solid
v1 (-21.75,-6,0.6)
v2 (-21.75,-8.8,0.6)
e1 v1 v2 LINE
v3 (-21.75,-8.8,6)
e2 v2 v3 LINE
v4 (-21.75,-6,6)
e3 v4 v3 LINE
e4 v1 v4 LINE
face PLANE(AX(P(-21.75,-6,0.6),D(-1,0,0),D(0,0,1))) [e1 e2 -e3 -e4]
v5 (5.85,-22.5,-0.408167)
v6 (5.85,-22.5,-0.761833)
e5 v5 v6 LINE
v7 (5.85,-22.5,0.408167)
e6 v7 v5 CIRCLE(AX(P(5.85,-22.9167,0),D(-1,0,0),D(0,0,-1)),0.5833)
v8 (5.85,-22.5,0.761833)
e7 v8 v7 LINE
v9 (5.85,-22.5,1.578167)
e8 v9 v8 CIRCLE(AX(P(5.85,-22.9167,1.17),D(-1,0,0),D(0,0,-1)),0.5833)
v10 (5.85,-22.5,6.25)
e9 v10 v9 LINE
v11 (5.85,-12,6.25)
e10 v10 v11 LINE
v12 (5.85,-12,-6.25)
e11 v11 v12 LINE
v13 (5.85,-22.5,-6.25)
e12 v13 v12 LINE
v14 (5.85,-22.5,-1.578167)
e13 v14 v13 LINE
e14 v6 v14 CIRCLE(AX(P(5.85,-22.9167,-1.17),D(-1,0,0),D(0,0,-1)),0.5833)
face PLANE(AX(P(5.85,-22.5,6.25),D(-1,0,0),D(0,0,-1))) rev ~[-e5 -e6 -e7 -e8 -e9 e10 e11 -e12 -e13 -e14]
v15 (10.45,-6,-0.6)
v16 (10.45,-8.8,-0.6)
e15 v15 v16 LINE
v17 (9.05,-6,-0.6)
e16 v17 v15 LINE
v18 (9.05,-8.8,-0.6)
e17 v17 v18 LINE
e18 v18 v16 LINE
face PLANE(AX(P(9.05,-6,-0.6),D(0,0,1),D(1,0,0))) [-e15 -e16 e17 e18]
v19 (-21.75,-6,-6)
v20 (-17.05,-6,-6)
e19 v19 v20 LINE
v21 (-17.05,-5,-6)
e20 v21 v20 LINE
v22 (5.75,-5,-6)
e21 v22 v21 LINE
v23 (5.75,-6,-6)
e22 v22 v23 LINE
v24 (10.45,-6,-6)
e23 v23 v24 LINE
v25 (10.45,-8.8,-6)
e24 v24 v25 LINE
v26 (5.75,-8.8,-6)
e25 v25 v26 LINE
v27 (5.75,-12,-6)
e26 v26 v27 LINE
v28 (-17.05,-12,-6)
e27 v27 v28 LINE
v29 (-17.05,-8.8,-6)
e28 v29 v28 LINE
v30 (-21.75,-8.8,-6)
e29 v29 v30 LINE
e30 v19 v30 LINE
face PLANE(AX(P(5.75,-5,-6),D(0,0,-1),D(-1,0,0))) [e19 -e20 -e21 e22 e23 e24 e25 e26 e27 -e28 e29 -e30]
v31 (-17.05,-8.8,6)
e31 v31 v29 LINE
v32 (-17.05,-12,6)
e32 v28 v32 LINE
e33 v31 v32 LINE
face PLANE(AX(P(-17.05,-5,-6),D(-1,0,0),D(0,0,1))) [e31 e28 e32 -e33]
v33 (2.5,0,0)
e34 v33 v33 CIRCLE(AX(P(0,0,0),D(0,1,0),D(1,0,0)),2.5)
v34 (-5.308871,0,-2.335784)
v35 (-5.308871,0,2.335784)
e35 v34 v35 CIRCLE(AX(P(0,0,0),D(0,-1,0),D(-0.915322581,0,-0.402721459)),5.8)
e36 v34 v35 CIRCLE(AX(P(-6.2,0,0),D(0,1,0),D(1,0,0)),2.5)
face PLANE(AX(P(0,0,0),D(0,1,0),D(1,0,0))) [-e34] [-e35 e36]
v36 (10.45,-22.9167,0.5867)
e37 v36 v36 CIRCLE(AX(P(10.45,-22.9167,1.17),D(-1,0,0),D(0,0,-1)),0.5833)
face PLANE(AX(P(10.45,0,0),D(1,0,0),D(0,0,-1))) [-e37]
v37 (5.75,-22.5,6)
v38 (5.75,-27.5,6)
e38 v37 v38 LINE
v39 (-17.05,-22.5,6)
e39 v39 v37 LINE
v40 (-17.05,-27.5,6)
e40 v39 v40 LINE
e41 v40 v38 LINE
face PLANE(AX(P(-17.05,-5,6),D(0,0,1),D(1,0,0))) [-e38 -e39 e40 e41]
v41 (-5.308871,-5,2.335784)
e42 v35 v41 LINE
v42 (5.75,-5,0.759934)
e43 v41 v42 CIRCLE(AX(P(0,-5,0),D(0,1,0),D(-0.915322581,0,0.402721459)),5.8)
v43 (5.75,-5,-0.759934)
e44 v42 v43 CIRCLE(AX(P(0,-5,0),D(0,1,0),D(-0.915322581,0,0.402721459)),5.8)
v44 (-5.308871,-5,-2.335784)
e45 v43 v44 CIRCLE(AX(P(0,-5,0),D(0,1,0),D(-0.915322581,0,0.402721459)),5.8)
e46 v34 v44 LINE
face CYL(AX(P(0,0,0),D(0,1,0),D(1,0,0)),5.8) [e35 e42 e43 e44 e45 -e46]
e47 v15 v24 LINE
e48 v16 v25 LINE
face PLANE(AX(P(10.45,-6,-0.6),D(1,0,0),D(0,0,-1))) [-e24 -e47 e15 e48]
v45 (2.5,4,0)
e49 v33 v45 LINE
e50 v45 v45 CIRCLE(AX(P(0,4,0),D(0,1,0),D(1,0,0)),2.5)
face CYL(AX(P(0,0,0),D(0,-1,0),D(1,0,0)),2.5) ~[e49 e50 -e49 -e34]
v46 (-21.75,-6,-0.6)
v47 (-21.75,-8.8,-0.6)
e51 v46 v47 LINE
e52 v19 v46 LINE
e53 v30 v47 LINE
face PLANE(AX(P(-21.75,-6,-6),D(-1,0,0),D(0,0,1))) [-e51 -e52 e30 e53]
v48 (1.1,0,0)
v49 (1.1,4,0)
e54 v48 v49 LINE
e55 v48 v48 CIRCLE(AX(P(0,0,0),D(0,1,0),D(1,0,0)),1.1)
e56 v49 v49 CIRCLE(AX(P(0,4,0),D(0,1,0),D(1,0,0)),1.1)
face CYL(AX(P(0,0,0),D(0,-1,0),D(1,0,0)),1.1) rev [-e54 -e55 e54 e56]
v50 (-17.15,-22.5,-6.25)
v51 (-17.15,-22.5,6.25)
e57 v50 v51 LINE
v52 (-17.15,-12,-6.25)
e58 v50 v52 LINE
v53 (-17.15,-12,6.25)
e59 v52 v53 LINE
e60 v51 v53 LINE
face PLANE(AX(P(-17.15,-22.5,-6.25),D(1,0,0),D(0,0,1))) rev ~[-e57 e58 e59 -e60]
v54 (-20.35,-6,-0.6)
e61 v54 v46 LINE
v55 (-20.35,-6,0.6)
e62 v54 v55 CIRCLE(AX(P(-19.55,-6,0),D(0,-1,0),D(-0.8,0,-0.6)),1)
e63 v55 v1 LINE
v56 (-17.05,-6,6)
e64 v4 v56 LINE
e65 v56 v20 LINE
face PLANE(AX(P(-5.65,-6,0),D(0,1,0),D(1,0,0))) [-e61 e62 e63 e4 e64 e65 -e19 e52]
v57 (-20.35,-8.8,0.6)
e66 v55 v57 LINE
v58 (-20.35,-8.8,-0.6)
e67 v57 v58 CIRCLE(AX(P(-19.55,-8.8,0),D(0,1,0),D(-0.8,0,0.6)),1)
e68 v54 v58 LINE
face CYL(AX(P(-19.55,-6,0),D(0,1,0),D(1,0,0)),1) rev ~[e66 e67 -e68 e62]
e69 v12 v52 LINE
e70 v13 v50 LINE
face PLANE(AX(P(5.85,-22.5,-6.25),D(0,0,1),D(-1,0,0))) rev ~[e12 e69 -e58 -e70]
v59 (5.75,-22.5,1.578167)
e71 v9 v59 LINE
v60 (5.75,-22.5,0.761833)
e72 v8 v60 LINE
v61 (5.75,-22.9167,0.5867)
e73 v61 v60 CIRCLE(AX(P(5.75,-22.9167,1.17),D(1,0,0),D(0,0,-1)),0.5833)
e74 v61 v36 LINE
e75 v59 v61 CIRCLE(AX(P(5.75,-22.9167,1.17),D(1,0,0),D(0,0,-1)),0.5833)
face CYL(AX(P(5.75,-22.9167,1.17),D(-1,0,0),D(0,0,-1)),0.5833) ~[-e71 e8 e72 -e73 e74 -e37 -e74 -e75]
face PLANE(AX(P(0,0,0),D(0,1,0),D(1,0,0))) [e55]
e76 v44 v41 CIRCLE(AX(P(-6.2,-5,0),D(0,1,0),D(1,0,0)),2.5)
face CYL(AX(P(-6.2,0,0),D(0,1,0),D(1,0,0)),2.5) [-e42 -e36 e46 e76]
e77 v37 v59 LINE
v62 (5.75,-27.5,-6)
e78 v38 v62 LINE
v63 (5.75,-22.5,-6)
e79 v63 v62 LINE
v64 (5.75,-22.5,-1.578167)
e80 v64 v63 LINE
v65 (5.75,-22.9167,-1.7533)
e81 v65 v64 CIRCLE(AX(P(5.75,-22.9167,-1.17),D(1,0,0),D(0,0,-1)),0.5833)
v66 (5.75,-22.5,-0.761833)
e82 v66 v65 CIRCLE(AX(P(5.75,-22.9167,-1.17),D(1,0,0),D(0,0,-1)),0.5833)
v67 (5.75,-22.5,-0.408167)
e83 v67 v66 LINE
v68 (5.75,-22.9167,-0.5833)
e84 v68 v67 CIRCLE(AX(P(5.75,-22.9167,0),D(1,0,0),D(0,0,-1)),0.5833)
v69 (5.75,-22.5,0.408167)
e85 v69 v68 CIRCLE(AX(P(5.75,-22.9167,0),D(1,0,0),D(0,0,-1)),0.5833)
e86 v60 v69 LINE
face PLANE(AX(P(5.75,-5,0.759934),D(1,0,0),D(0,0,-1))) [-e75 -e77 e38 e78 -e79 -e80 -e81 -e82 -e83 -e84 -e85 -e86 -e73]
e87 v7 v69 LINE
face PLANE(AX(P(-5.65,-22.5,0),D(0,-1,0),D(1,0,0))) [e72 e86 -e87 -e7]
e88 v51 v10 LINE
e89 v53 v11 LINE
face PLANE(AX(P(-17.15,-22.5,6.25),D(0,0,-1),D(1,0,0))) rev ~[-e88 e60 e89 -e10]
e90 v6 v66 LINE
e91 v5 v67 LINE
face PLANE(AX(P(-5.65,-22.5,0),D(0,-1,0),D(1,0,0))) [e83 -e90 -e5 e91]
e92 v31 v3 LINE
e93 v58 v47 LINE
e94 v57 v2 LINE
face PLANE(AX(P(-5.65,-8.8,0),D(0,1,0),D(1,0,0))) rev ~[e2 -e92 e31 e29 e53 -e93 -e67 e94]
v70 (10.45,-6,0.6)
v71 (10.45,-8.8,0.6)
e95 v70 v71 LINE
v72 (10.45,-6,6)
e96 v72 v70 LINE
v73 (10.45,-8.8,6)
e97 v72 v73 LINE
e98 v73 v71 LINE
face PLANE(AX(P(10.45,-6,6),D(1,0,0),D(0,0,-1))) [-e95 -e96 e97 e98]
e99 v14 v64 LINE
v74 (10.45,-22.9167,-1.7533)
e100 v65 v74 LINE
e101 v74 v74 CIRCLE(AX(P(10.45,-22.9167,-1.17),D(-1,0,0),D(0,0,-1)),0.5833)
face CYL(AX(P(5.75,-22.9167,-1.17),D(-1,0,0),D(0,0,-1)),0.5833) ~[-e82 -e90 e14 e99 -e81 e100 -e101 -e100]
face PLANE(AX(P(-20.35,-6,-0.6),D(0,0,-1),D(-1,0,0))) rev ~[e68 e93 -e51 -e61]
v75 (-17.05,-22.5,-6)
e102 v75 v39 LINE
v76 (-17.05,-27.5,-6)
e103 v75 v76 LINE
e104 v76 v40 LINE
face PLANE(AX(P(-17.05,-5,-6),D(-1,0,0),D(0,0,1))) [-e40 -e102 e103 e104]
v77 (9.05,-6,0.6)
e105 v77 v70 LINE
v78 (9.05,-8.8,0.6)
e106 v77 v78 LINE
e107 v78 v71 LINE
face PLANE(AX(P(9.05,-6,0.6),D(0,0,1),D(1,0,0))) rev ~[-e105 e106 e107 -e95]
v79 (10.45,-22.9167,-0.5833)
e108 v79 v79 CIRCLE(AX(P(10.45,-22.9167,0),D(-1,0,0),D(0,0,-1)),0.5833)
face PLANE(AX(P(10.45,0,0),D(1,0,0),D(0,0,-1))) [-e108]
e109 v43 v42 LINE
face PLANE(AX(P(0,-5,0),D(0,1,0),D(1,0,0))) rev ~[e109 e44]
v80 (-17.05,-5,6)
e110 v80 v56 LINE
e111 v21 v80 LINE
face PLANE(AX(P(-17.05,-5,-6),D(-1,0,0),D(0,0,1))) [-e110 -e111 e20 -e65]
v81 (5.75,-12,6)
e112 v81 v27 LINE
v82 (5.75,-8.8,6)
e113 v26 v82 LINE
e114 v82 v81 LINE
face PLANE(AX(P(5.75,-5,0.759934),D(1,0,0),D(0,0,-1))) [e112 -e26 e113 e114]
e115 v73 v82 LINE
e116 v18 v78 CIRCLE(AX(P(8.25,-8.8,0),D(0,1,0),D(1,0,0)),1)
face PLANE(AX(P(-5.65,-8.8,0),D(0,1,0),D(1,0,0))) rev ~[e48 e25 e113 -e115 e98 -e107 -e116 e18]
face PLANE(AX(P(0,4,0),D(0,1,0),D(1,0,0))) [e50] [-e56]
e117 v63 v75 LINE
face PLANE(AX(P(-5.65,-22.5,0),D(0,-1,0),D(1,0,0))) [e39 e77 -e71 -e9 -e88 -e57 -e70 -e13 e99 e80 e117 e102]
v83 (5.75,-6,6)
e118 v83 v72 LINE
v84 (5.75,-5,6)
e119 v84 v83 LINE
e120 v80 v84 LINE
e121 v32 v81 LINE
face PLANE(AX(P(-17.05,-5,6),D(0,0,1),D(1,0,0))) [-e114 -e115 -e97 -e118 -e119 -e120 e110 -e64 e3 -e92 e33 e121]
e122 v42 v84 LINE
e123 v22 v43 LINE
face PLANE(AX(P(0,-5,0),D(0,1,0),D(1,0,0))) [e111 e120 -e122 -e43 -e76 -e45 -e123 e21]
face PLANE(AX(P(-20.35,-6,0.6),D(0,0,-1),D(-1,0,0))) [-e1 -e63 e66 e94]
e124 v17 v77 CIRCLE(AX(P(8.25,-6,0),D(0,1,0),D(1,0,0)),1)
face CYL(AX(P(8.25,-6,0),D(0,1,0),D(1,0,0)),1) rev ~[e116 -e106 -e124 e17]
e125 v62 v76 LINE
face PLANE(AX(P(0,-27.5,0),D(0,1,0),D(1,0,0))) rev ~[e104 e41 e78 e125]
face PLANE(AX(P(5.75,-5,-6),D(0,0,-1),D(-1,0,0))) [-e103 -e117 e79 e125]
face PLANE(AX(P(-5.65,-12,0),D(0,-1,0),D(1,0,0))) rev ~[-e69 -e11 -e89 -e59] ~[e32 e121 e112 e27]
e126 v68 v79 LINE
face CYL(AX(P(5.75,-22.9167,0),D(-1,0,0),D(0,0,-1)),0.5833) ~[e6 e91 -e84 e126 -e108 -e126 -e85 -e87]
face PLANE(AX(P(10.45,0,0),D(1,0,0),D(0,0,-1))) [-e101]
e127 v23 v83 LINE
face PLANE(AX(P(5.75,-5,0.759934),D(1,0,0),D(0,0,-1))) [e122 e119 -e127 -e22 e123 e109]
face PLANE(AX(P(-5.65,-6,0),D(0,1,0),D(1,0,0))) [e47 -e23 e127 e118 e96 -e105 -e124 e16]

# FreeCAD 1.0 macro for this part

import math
import FreeCAD as App
import Part
import Sketcher
from FreeCAD import Vector
Q = App.Units.Quantity


def add_polygon(sketch, points):
    """Adds a closed chain of lines whose ends are joined by coincident constraints."""
    first, n = sketch.GeometryCount, len(points)
    for a, b in zip(points, points[1:] + points[:1]):
        sketch.addGeometry(Part.LineSegment(App.Vector(*a, 0), App.Vector(*b, 0)), False)
    for i in range(n):
        sketch.addConstraint(Sketcher.Constraint("Coincident", first + i, 2, first + (i + 1) % n, 1))

doc = App.newDocument("Part")
params = doc.addObject("Spreadsheet::Sheet", "Params")
for row, (alias, value) in enumerate([
    ("sketch1_radius", "2.5 mm"),
    ("sketch1_radius2", "5.8 mm"),
    ("pad1_length", "5 mm"),
    ("sketch2_height", "12 mm"),
    ("sketch2_width", "22.8 mm"),
    ("pad2_length", "22.5 mm"),
    ("sketch3_radius", "1 mm"),
    ("sketch3_width", "32.2 mm"),
    ("sketch3_width2", "1.4 mm"),
    ("sketch3_height", "5.4 mm"),
    ("pad3_length", "2.8 mm"),
    ("sketch4_width", "23 mm"),
    ("sketch4_height", "12.5 mm"),
    ("pad4_length", "10.5 mm"),
    ("sketch5_diameter", "5 mm"),
    ("sketch5_diameter2", "2.2 mm"),
    ("pad5_length", "4 mm"),
    ("pad6_length", "4.7 mm"),
], start=1):
    params.set(f"A{row}", alias)
    params.set(f"B{row}", "=" + value)
    params.setAlias(f"B{row}", alias)

body = doc.addObject("PartDesign::Body", "Body")

# Sketch on XZ plane
sketch1 = body.newObject("Sketcher::SketchObject", "Sketch")
sketch1.AttachmentSupport = (doc.getObject("XZ_Plane"), [""])
sketch1.MapMode = "FlatFace"
sketch1.addGeometry([
    Part.ArcOfCircle(Part.Circle(Vector(-6.2, 0, 0), Vector(0, 0, 1), 2.5), math.radians(69), math.radians(291)),
    Part.ArcOfCircle(Part.Circle(Vector(0, 0, 0), Vector(0, 0, 1), 5.8), math.radians(-156), math.radians(156)),
], False)
sketch1.addConstraint([
    Sketcher.Constraint("Coincident", 0, 1, 1, 2),
    Sketcher.Constraint("Coincident", 1, 1, 0, 2),
    Sketcher.Constraint("Coincident", 1, 3, -1, 1),
    Sketcher.Constraint("PointOnObject", 0, 3, -1),
    Sketcher.Constraint("Radius", 0, Q("2.5 mm")),
    Sketcher.Constraint("Radius", 1, Q("5.8 mm")),
    Sketcher.Constraint("DistanceX", 0, 3, -1, 1, Q("6.2 mm")),
])
sketch1.setExpression("Constraints[4]", "Params.sketch1_radius")
sketch1.setExpression("Constraints[5]", "Params.sketch1_radius2")
pad1 = body.newObject("PartDesign::Pad", "Pad")
pad1.Profile = sketch1
pad1.setExpression("Length", "Params.pad1_length")

# Sketch on XZ plane
sketch2 = body.newObject("Sketcher::SketchObject", "Sketch001")
sketch2.AttachmentSupport = (doc.getObject("XZ_Plane"), [""])
sketch2.MapMode = "FlatFace"
sketch2.AttachmentOffset = App.Placement(Vector(0, 0, 5), App.Rotation())
add_polygon(sketch2, [(6, -6), (-17, -6), (-17, 6), (6, 6)])  # lines 0-3
sketch2.addConstraint([
    Sketcher.Constraint("Horizontal", 0),
    Sketcher.Constraint("Vertical", 1),
    Sketcher.Constraint("Horizontal", 2),
    Sketcher.Constraint("Vertical", 3),
    Sketcher.Constraint("DistanceY", 1, 1, 1, 2, Q("12 mm")),
    Sketcher.Constraint("DistanceX", 0, 2, 0, 1, Q("22.8 mm")),
    Sketcher.Constraint("DistanceX", -1, 1, 2, 2, Q("5.75 mm")),
    Sketcher.Constraint("DistanceY", 0, 2, -1, 1, Q("6 mm")),
])
sketch2.setExpression("Constraints[8]", "Params.sketch2_height")
sketch2.setExpression("Constraints[9]", "Params.sketch2_width")
pad2 = body.newObject("PartDesign::Pad", "Pad001")
pad2.Profile = sketch2
pad2.setExpression("Length", "Params.pad2_length")

# Sketch on XZ plane
sketch3 = body.newObject("Sketcher::SketchObject", "Sketch002")
sketch3.AttachmentSupport = (doc.getObject("XZ_Plane"), [""])
sketch3.MapMode = "FlatFace"
sketch3.AttachmentOffset = App.Placement(Vector(0, 0, 6), App.Rotation())
sketch3.addGeometry([
    Part.LineSegment(Vector(10.4, -0.6, 0), Vector(10.4, -6, 0)),  # 0
    Part.LineSegment(Vector(10.4, -6, 0), Vector(-21.8, -6, 0)),  # 1
    Part.LineSegment(Vector(-21.8, -6, 0), Vector(-21.8, -0.6, 0)),  # 2
    Part.LineSegment(Vector(-21.8, -0.6, 0), Vector(-20.4, -0.6, 0)),  # 3
    Part.ArcOfCircle(Part.Circle(Vector(-19.6, 0, 0), Vector(0, 0, 1), 1), math.radians(-143), math.radians(143)),  # 4
    Part.LineSegment(Vector(-20.4, 0.6, 0), Vector(-21.8, 0.6, 0)),  # 5
    Part.LineSegment(Vector(-21.8, 0.6, 0), Vector(-21.8, 6, 0)),  # 6
    Part.LineSegment(Vector(-21.8, 6, 0), Vector(10.4, 6, 0)),  # 7
    Part.LineSegment(Vector(10.4, 6, 0), Vector(10.4, 0.6, 0)),  # 8
    Part.LineSegment(Vector(10.4, 0.6, 0), Vector(9.1, 0.6, 0)),  # 9
    Part.ArcOfCircle(Part.Circle(Vector(8.2, 0, 0), Vector(0, 0, 1), 1), math.radians(37), math.radians(323)),  # 10
    Part.LineSegment(Vector(9.1, -0.6, 0), Vector(10.4, -0.6, 0)),  # 11
], False)
sketch3.addConstraint([
    Sketcher.Constraint("Coincident", 0, 2, 1, 1),
    Sketcher.Constraint("Coincident", 1, 2, 2, 1),
    Sketcher.Constraint("Coincident", 2, 2, 3, 1),
    Sketcher.Constraint("Coincident", 3, 2, 4, 1),
    Sketcher.Constraint("Coincident", 4, 2, 5, 1),
    Sketcher.Constraint("Coincident", 5, 2, 6, 1),
    Sketcher.Constraint("Coincident", 6, 2, 7, 1),
    Sketcher.Constraint("Coincident", 7, 2, 8, 1),
    Sketcher.Constraint("Coincident", 8, 2, 9, 1),
    Sketcher.Constraint("Coincident", 9, 2, 10, 1),
    Sketcher.Constraint("Coincident", 10, 2, 11, 1),
    Sketcher.Constraint("Coincident", 11, 2, 0, 1),
    Sketcher.Constraint("Vertical", 0),
    Sketcher.Constraint("Horizontal", 1),
    Sketcher.Constraint("Vertical", 2),
    Sketcher.Constraint("Horizontal", 3),
    Sketcher.Constraint("Horizontal", 5),
    Sketcher.Constraint("Vertical", 6),
    Sketcher.Constraint("Horizontal", 7),
    Sketcher.Constraint("Vertical", 8),
    Sketcher.Constraint("Horizontal", 9),
    Sketcher.Constraint("Horizontal", 11),
    Sketcher.Constraint("Equal", 4, 10),
    Sketcher.Constraint("Symmetric", 3, 2, 4, 2, -1),
    Sketcher.Constraint("Symmetric", 1, 2, 6, 2, -1),
    Sketcher.Constraint("Symmetric", 9, 2, 10, 2, -1),
    Sketcher.Constraint("Horizontal", 5, 2, 8, 2),
    Sketcher.Constraint("Vertical", 0, 2, 7, 2),
    Sketcher.Constraint("Equal", 5, 9),
    Sketcher.Constraint("Radius", 4, Q("1 mm")),
    Sketcher.Constraint("DistanceX", 1, 2, 1, 1, Q("32.2 mm")),
    Sketcher.Constraint("DistanceY", 3, 2, 4, 2, Q("1.2 mm")),
    Sketcher.Constraint("DistanceX", 3, 1, 3, 2, Q("1.4 mm")),
    Sketcher.Constraint("DistanceY", 0, 2, 0, 1, Q("5.4 mm")),
    Sketcher.Constraint("DistanceX", 4, 3, -1, 1, Q("19.55 mm")),
])
sketch3.setExpression("Constraints[29]", "Params.sketch3_radius")
sketch3.setExpression("Constraints[30]", "Params.sketch3_width")
sketch3.setExpression("Constraints[32]", "Params.sketch3_width2")
sketch3.setExpression("Constraints[33]", "Params.sketch3_height")
pad3 = body.newObject("PartDesign::Pad", "Pad002")
pad3.Profile = sketch3
pad3.setExpression("Length", "Params.pad3_length")

# Sketch on XZ plane
sketch4 = body.newObject("Sketcher::SketchObject", "Sketch003")
sketch4.AttachmentSupport = (doc.getObject("XZ_Plane"), [""])
sketch4.MapMode = "FlatFace"
sketch4.AttachmentOffset = App.Placement(Vector(0, 0, 22.5), App.Rotation())
add_polygon(sketch4, [(-17, -6), (6, -6), (6, 6), (-17, 6)])  # lines 0-3
sketch4.addConstraint([
    Sketcher.Constraint("Horizontal", 0),
    Sketcher.Constraint("Vertical", 1),
    Sketcher.Constraint("Horizontal", 2),
    Sketcher.Constraint("Vertical", 3),
    Sketcher.Constraint("DistanceX", 0, 1, 0, 2, Q("23 mm")),
    Sketcher.Constraint("DistanceY", 1, 1, 1, 2, Q("12.5 mm")),
    Sketcher.Constraint("DistanceX", -1, 1, 0, 2, Q("5.85 mm")),
    Sketcher.Constraint("DistanceY", 0, 2, -1, 1, Q("6.25 mm")),
])
sketch4.setExpression("Constraints[8]", "Params.sketch4_width")
sketch4.setExpression("Constraints[9]", "Params.sketch4_height")
pad4 = body.newObject("PartDesign::Pad", "Pad003")
pad4.Profile = sketch4
pad4.setExpression("Length", "Params.pad4_length")
pad4.Reversed = True

# Sketch on XZ plane
sketch5 = body.newObject("Sketcher::SketchObject", "Sketch004")
sketch5.AttachmentSupport = (doc.getObject("XZ_Plane"), [""])
sketch5.MapMode = "FlatFace"
sketch5.addGeometry([
    Part.Circle(Vector(0, 0, 0), Vector(0, 0, 1), 2.5),
    Part.Circle(Vector(0, 0, 0), Vector(0, 0, 1), 1.1),
], False)
sketch5.addConstraint([
    Sketcher.Constraint("Coincident", 0, 3, -1, 1),
    Sketcher.Constraint("Coincident", 1, 3, -1, 1),
    Sketcher.Constraint("Diameter", 0, Q("5 mm")),
    Sketcher.Constraint("Diameter", 1, Q("2.2 mm")),
])
sketch5.setExpression("Constraints[2]", "Params.sketch5_diameter")
sketch5.setExpression("Constraints[3]", "Params.sketch5_diameter2")
pad5 = body.newObject("PartDesign::Pad", "Pad004")
pad5.Profile = sketch5
pad5.setExpression("Length", "Params.pad5_length")
pad5.Reversed = True

# Sketch on YZ plane
sketch6 = body.newObject("Sketcher::SketchObject", "Sketch005")
sketch6.AttachmentSupport = (doc.getObject("YZ_Plane"), [""])
sketch6.MapMode = "FlatFace"
sketch6.AttachmentOffset = App.Placement(Vector(0, 0, 5.75), App.Rotation())
sketch6.addGeometry([
    Part.Circle(Vector(-22.9, -1.2, 0), Vector(0, 0, 1), 0.6),
    Part.Circle(Vector(-22.9, 0, 0), Vector(0, 0, 1), 0.6),
    Part.Circle(Vector(-22.9, 1.2, 0), Vector(0, 0, 1), 0.6),
], False)
sketch6.addConstraint([
    Sketcher.Constraint("Equal", 0, 1),
    Sketcher.Constraint("Equal", 1, 2),
    Sketcher.Constraint("Symmetric", 0, 3, 2, 3, -1),
    Sketcher.Constraint("PointOnObject", 1, 3, -1),
    Sketcher.Constraint("Vertical", 0, 3, 1, 3),
    Sketcher.Constraint("Diameter", 0, Q("1.1666 mm")),
    Sketcher.Constraint("DistanceY", 0, 3, -1, 1, Q("1.17 mm")),
    Sketcher.Constraint("DistanceX", 0, 3, -1, 1, Q("22.9167 mm")),
])
pad6 = body.newObject("PartDesign::Pad", "Pad005")
pad6.Profile = sketch6
pad6.setExpression("Length", "Params.pad6_length")

doc.recompute()
